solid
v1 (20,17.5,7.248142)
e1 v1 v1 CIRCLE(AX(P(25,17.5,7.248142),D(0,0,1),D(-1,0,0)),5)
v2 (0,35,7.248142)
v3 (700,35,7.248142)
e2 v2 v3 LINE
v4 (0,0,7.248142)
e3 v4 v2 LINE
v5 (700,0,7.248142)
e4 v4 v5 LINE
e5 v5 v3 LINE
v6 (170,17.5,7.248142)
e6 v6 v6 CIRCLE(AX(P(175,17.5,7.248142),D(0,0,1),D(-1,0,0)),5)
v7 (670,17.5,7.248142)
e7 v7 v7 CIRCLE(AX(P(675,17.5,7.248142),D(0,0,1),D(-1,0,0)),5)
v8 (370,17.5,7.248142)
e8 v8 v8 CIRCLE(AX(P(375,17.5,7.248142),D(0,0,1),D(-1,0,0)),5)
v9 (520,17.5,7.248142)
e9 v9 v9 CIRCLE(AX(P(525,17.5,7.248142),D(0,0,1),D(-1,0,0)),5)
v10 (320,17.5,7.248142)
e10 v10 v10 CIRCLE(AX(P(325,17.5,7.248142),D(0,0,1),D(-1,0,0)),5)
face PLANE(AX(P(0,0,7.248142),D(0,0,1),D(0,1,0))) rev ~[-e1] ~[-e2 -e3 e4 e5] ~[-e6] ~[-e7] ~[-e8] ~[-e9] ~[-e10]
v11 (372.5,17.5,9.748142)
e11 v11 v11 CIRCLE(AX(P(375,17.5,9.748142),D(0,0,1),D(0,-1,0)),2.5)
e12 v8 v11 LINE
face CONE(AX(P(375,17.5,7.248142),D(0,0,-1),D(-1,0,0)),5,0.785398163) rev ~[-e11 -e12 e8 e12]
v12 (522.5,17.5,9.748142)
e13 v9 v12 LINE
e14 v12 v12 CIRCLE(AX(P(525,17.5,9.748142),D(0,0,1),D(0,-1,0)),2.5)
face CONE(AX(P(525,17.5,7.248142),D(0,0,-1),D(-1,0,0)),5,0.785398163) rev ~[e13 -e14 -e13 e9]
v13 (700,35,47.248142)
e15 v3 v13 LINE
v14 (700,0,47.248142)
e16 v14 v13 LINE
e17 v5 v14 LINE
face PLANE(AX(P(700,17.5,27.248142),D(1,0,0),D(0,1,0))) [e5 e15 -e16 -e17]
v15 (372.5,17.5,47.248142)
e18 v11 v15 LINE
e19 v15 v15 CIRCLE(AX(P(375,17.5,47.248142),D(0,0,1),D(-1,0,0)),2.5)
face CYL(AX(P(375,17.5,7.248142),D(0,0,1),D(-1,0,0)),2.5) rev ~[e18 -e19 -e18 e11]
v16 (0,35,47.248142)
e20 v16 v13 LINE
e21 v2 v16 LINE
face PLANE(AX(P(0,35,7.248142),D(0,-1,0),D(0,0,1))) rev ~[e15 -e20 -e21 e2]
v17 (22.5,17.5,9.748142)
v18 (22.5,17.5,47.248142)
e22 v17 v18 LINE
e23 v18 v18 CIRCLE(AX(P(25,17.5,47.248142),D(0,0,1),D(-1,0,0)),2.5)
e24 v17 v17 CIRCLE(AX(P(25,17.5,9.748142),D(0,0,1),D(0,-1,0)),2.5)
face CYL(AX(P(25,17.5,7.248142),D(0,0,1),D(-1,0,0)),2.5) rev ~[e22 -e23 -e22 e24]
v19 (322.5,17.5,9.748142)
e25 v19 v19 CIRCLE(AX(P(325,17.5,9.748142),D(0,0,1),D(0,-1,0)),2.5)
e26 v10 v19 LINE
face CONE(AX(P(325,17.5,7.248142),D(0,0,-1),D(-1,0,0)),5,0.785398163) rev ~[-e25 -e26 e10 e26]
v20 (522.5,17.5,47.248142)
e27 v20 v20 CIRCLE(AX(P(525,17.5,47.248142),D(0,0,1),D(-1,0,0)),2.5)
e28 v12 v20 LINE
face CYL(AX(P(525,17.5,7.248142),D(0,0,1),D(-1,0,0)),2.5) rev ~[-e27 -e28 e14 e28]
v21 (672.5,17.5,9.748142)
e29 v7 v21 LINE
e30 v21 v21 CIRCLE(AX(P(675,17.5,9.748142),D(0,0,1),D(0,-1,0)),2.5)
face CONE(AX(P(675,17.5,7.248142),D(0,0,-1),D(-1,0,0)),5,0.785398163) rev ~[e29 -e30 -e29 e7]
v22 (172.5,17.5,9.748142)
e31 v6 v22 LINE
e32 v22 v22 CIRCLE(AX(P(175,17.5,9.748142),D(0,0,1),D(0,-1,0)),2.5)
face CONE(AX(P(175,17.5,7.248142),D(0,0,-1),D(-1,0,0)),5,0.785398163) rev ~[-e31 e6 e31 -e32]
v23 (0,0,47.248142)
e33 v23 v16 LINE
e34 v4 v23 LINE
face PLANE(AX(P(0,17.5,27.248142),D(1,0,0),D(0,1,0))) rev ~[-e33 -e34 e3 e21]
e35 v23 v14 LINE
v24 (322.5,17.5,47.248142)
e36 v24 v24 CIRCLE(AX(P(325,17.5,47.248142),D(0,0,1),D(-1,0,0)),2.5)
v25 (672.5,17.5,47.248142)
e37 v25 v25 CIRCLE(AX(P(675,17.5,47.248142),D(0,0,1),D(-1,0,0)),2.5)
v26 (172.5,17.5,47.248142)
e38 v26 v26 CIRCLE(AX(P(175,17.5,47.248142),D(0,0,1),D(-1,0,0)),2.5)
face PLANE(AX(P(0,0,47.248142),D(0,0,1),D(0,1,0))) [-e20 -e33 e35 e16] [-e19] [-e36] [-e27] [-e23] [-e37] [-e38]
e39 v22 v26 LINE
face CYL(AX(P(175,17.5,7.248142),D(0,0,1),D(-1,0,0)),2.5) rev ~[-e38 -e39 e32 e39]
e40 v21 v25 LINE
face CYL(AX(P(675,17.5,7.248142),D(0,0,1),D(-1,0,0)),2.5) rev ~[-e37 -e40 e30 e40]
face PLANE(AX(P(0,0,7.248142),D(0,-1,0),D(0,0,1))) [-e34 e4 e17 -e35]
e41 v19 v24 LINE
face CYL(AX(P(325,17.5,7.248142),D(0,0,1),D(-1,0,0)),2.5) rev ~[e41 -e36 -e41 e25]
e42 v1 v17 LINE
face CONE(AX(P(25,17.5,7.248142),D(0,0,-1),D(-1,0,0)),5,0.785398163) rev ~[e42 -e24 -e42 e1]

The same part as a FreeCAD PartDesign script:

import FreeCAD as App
import Part
import Sketcher

V = App.Vector
Q = App.Units.Quantity


def add_polygon(sketch, points):
    """Adds a closed chain of lines whose ends are joined by coincident constraints."""
    first, n = sketch.GeometryCount, len(points)
    for a, b in zip(points, points[1:] + points[:1]):
        sketch.addGeometry(Part.LineSegment(App.Vector(*a, 0), App.Vector(*b, 0)), False)
    for i in range(n):
        sketch.addConstraint(Sketcher.Constraint("Coincident", first + i, 2, first + (i + 1) % n, 1))

doc = App.newDocument("Part")
body = doc.addObject("PartDesign::Body", "Body")

sketch1 = doc.addObject("Sketcher::SketchObject", "Sketch")
body.addObject(sketch1)
sketch1.AttachmentSupport = (doc.YZ_Plane, [""])
sketch1.MapMode = "FlatFace"
add_polygon(sketch1, [(0, 47.248142), (0, 7.248142), (35, 7.248142), (35, 47.248142)])
sketch1.addConstraint([
    Sketcher.Constraint("Vertical", 0),
    Sketcher.Constraint("Horizontal", 1),
    Sketcher.Constraint("Vertical", 2),
    Sketcher.Constraint("Horizontal", 3),
    Sketcher.Constraint("PointOnObject", 0, 2, -2),
    Sketcher.Constraint("DistanceX", 1, 1, 1, 2, Q("35 mm")),
    Sketcher.Constraint("DistanceY", 0, 2, 0, 1, Q("40 mm")),
    Sketcher.Constraint("DistanceY", -1, 1, 0, 2, Q("7.248142 mm")),
])
pad1 = doc.addObject("PartDesign::Pad", "Pad")
body.addObject(pad1)
pad1.Profile = sketch1
pad1.Length = 700

sketch2 = doc.addObject("Sketcher::SketchObject", "Sketch001")
body.addObject(sketch2)
sketch2.AttachmentSupport = (doc.XY_Plane, [""])
sketch2.MapMode = "FlatFace"
sketch2.AttachmentOffset = App.Placement(V(0, 0, 7.248142), App.Rotation())
sketch2.addGeometry([
    Part.Circle(V(25, 17.5, 0), V(0, 0, 1), 2.5),
    Part.Circle(V(175, 17.5, 0), V(0, 0, 1), 2.5),
    Part.Circle(V(325, 17.5, 0), V(0, 0, 1), 2.5),
    Part.Circle(V(375, 17.5, 0), V(0, 0, 1), 2.5),
    Part.Circle(V(675, 17.5, 0), V(0, 0, 1), 2.5),
    Part.Circle(V(525, 17.5, 0), V(0, 0, 1), 2.5),
], False)
sketch2.addConstraint([
    Sketcher.Constraint("Equal", 0, 1),
    Sketcher.Constraint("Equal", 1, 2),
    Sketcher.Constraint("Equal", 2, 3),
    Sketcher.Constraint("Equal", 3, 4),
    Sketcher.Constraint("Equal", 4, 5),
    Sketcher.Constraint("Horizontal", 0, 3, 1, 3),
    Sketcher.Constraint("Horizontal", 1, 3, 2, 3),
    Sketcher.Constraint("Horizontal", 2, 3, 3, 3),
    Sketcher.Constraint("Horizontal", 3, 3, 4, 3),
    Sketcher.Constraint("Horizontal", 4, 3, 5, 3),
    Sketcher.Constraint("Diameter", 0, Q("5 mm")),
    Sketcher.Constraint("DistanceX", -1, 1, 0, 3, Q("25 mm")),
    Sketcher.Constraint("DistanceX", -1, 1, 1, 3, Q("175 mm")),
    Sketcher.Constraint("DistanceX", -1, 1, 2, 3, Q("325 mm")),
    Sketcher.Constraint("DistanceX", -1, 1, 3, 3, Q("375 mm")),
    Sketcher.Constraint("DistanceX", -1, 1, 4, 3, Q("675 mm")),
    Sketcher.Constraint("DistanceX", -1, 1, 5, 3, Q("525 mm")),
    Sketcher.Constraint("DistanceY", -1, 1, 0, 3, Q("17.5 mm")),
])
doc.recompute()
hole = doc.addObject("PartDesign::Hole", "Hole")
body.addObject(hole)
hole.Profile = sketch2
hole.ThreadType = "None"
hole.Diameter = 5
hole.DepthType = "ThroughAll"
hole.HoleCutType = "Countersink"
hole.HoleCutDiameter = 10
hole.HoleCutCountersinkAngle = 90
hole.Reversed = True

doc.recompute()
